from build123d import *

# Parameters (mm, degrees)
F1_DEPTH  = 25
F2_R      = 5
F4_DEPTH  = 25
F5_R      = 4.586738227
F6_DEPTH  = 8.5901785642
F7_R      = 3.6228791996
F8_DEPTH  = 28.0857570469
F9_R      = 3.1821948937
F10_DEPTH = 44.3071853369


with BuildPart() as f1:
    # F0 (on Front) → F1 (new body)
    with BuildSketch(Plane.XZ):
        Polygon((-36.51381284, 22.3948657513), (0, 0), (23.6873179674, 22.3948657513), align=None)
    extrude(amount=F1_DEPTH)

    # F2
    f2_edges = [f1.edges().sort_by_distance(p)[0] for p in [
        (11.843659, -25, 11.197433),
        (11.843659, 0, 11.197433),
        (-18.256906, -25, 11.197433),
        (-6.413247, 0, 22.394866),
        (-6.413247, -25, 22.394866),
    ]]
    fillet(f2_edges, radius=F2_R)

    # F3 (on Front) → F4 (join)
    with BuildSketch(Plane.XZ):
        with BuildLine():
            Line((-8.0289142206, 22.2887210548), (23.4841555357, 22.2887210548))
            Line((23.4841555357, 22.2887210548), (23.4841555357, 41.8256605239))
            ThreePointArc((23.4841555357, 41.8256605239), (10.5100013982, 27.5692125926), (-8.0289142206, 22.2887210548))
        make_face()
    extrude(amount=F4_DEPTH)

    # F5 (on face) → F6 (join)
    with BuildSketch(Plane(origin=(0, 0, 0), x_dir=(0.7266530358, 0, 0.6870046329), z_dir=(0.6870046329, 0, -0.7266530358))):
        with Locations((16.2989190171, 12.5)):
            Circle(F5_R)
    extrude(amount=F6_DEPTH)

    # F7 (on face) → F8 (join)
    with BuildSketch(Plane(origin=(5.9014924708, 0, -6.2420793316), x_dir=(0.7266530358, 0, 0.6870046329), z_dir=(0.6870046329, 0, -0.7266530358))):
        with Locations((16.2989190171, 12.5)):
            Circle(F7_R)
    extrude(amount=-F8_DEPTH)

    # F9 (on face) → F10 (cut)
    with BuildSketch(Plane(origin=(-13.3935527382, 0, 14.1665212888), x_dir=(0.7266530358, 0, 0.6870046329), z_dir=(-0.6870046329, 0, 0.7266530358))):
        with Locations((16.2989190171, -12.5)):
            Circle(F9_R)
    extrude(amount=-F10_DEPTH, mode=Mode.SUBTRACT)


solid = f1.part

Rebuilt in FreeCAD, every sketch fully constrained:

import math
import FreeCAD as App
import Part
import Sketcher
from FreeCAD import Vector


def edges_at(feature, points):
    """Names of the edges that pass closest to the given points."""
    edges = feature.Shape.Edges
    near = lambda p: min(range(len(edges)), key=lambda i: edges[i].distToShape(Part.Vertex(*p))[0])
    return sorted({f"Edge{near(p) + 1}" for p in points})


def add_polygon(sketch, points):
    """Adds a closed chain of lines whose ends are joined by coincident constraints."""
    first, n = sketch.GeometryCount, len(points)
    for a, b in zip(points, points[1:] + points[:1]):
        sketch.addGeometry(Part.LineSegment(App.Vector(*a, 0), App.Vector(*b, 0)), False)
    for i in range(n):
        sketch.addConstraint(Sketcher.Constraint("Coincident", first + i, 2, first + (i + 1) % n, 1))

doc = App.newDocument("Part")
body = doc.addObject("PartDesign::Body", "Body")

sketch1 = body.newObject("Sketcher::SketchObject", "Sketch")
sketch1.AttachmentSupport = (doc.getObject("XZ_Plane"), [""])
sketch1.MapMode = "FlatFace"
add_polygon(sketch1, [(-36.513813, 22.394866), (0, 0), (23.687318, 22.394866)])
sketch1.addConstraint([
    Sketcher.Constraint("Horizontal", 2),
    Sketcher.Constraint("Coincident", 0, 2, -1, 1),
    Sketcher.Constraint("DistanceX", 2, 2, 2, 1, 60.201131),
    Sketcher.Constraint("Distance", 0, 42.834432),
    Sketcher.Constraint("Distance", 1, 32.597838),
])
pad1 = body.newObject("PartDesign::Pad", "Pad")
pad1.Profile = sketch1
pad1.Length = 25
doc.recompute()

fillet = body.newObject("PartDesign::Fillet", "Fillet")
fillet.Base = (pad1, edges_at(pad1, [
    (11.844, -25, 11.197),
    (11.844, 0, 11.197),
    (-18.257, -25, 11.197),
    (-6.413, 0, 22.395),
    (-6.413, -25, 22.395),
]))
fillet.Radius = 5

sketch2 = body.newObject("Sketcher::SketchObject", "Sketch001")
sketch2.AttachmentSupport = (doc.getObject("XZ_Plane"), [""])
sketch2.MapMode = "FlatFace"
sketch2.addGeometry([
    Part.LineSegment(Vector(-8.028914, 22.288721, 0), Vector(23.484156, 22.288721, 0)),
    Part.LineSegment(Vector(23.484156, 22.288721, 0), Vector(23.484156, 41.825661, 0)),
    Part.ArcOfCircle(Part.Circle(Vector(-8.028914, 57.472471, 0), Vector(0, 0, 1), 35.18375), math.radians(-90), math.radians(-26.405231)),
], False)
sketch2.addConstraint([
    Sketcher.Constraint("Coincident", 0, 2, 1, 1),
    Sketcher.Constraint("Coincident", 1, 2, 2, 2),
    Sketcher.Constraint("Tangent", 2, 1, 0, 1),
    Sketcher.Constraint("Horizontal", 0),
    Sketcher.Constraint("Vertical", 1),
    Sketcher.Constraint("Radius", 2, 35.18375),
    Sketcher.Constraint("DistanceX", 0, 1, 0, 2, 31.51307),
    Sketcher.Constraint("DistanceY", -1, 1, 2, 3, 57.472471),
    Sketcher.Constraint("DistanceX", 2, 3, -1, 1, 8.028914),
])
pad2 = body.newObject("PartDesign::Pad", "Pad001")
pad2.Profile = sketch2
pad2.Length = 25

sketch3 = body.newObject("Sketcher::SketchObject", "Sketch002")
sketch3.Placement = App.Placement(Vector(0, 0, 0), App.Rotation(Vector(0.726653036, 0, 0.687004633), Vector(0, -1, 0), Vector(0.687004633, 0, -0.726653036), "ZXY"))
sketch3.addGeometry(Part.Circle(Vector(16.298919, 12.5, 0), Vector(0, 0, 1), 4.586738), False)
sketch3.addConstraint([
    Sketcher.Constraint("DistanceY", -1, 1, 0, 3, 12.5),
    Sketcher.Constraint("Diameter", 0, 9.173476),
    Sketcher.Constraint("DistanceX", -1, 1, 0, 3, 16.298919),
])
pad3 = body.newObject("PartDesign::Pad", "Pad002")
pad3.Profile = sketch3
pad3.Length = 8.590179

sketch4 = body.newObject("Sketcher::SketchObject", "Sketch003")
sketch4.Placement = App.Placement(Vector(5.901492, 0, -6.242079), App.Rotation(Vector(0.726653036, 0, 0.687004633), Vector(0, -1, 0), Vector(0.687004633, 0, -0.726653036), "ZXY"))
sketch4.addGeometry(Part.Circle(Vector(16.298919, 12.5, 0), Vector(0, 0, 1), 3.622879), False)
sketch4.addConstraint([
    Sketcher.Constraint("DistanceY", -1, 1, 0, 3, 12.5),
    Sketcher.Constraint("Diameter", 0, 7.245758),
    Sketcher.Constraint("DistanceX", -1, 1, 0, 3, 16.298919),
])
pad4 = body.newObject("PartDesign::Pad", "Pad003")
pad4.Profile = sketch4
pad4.Length = 28.085757
pad4.Reversed = True

sketch5 = body.newObject("Sketcher::SketchObject", "Sketch004")
sketch5.Placement = App.Placement(Vector(-13.393553, 0, 14.166521), App.Rotation(Vector(0.726653036, 0, 0.687004633), Vector(0, 1, 0), Vector(-0.687004633, 0, 0.726653036), "ZXY"))
sketch5.addGeometry(Part.Circle(Vector(16.298919, -12.5, 0), Vector(0, 0, 1), 3.182195), False)
sketch5.addConstraint([
    Sketcher.Constraint("DistanceY", 0, 3, -1, 1, 12.5),
    Sketcher.Constraint("Diameter", 0, 6.36439),
    Sketcher.Constraint("DistanceX", -1, 1, 0, 3, 16.298919),
])
pocket1 = body.newObject("PartDesign::Pocket", "Pocket")
pocket1.Profile = sketch5
pocket1.Length = 44.307185

doc.recompute()
